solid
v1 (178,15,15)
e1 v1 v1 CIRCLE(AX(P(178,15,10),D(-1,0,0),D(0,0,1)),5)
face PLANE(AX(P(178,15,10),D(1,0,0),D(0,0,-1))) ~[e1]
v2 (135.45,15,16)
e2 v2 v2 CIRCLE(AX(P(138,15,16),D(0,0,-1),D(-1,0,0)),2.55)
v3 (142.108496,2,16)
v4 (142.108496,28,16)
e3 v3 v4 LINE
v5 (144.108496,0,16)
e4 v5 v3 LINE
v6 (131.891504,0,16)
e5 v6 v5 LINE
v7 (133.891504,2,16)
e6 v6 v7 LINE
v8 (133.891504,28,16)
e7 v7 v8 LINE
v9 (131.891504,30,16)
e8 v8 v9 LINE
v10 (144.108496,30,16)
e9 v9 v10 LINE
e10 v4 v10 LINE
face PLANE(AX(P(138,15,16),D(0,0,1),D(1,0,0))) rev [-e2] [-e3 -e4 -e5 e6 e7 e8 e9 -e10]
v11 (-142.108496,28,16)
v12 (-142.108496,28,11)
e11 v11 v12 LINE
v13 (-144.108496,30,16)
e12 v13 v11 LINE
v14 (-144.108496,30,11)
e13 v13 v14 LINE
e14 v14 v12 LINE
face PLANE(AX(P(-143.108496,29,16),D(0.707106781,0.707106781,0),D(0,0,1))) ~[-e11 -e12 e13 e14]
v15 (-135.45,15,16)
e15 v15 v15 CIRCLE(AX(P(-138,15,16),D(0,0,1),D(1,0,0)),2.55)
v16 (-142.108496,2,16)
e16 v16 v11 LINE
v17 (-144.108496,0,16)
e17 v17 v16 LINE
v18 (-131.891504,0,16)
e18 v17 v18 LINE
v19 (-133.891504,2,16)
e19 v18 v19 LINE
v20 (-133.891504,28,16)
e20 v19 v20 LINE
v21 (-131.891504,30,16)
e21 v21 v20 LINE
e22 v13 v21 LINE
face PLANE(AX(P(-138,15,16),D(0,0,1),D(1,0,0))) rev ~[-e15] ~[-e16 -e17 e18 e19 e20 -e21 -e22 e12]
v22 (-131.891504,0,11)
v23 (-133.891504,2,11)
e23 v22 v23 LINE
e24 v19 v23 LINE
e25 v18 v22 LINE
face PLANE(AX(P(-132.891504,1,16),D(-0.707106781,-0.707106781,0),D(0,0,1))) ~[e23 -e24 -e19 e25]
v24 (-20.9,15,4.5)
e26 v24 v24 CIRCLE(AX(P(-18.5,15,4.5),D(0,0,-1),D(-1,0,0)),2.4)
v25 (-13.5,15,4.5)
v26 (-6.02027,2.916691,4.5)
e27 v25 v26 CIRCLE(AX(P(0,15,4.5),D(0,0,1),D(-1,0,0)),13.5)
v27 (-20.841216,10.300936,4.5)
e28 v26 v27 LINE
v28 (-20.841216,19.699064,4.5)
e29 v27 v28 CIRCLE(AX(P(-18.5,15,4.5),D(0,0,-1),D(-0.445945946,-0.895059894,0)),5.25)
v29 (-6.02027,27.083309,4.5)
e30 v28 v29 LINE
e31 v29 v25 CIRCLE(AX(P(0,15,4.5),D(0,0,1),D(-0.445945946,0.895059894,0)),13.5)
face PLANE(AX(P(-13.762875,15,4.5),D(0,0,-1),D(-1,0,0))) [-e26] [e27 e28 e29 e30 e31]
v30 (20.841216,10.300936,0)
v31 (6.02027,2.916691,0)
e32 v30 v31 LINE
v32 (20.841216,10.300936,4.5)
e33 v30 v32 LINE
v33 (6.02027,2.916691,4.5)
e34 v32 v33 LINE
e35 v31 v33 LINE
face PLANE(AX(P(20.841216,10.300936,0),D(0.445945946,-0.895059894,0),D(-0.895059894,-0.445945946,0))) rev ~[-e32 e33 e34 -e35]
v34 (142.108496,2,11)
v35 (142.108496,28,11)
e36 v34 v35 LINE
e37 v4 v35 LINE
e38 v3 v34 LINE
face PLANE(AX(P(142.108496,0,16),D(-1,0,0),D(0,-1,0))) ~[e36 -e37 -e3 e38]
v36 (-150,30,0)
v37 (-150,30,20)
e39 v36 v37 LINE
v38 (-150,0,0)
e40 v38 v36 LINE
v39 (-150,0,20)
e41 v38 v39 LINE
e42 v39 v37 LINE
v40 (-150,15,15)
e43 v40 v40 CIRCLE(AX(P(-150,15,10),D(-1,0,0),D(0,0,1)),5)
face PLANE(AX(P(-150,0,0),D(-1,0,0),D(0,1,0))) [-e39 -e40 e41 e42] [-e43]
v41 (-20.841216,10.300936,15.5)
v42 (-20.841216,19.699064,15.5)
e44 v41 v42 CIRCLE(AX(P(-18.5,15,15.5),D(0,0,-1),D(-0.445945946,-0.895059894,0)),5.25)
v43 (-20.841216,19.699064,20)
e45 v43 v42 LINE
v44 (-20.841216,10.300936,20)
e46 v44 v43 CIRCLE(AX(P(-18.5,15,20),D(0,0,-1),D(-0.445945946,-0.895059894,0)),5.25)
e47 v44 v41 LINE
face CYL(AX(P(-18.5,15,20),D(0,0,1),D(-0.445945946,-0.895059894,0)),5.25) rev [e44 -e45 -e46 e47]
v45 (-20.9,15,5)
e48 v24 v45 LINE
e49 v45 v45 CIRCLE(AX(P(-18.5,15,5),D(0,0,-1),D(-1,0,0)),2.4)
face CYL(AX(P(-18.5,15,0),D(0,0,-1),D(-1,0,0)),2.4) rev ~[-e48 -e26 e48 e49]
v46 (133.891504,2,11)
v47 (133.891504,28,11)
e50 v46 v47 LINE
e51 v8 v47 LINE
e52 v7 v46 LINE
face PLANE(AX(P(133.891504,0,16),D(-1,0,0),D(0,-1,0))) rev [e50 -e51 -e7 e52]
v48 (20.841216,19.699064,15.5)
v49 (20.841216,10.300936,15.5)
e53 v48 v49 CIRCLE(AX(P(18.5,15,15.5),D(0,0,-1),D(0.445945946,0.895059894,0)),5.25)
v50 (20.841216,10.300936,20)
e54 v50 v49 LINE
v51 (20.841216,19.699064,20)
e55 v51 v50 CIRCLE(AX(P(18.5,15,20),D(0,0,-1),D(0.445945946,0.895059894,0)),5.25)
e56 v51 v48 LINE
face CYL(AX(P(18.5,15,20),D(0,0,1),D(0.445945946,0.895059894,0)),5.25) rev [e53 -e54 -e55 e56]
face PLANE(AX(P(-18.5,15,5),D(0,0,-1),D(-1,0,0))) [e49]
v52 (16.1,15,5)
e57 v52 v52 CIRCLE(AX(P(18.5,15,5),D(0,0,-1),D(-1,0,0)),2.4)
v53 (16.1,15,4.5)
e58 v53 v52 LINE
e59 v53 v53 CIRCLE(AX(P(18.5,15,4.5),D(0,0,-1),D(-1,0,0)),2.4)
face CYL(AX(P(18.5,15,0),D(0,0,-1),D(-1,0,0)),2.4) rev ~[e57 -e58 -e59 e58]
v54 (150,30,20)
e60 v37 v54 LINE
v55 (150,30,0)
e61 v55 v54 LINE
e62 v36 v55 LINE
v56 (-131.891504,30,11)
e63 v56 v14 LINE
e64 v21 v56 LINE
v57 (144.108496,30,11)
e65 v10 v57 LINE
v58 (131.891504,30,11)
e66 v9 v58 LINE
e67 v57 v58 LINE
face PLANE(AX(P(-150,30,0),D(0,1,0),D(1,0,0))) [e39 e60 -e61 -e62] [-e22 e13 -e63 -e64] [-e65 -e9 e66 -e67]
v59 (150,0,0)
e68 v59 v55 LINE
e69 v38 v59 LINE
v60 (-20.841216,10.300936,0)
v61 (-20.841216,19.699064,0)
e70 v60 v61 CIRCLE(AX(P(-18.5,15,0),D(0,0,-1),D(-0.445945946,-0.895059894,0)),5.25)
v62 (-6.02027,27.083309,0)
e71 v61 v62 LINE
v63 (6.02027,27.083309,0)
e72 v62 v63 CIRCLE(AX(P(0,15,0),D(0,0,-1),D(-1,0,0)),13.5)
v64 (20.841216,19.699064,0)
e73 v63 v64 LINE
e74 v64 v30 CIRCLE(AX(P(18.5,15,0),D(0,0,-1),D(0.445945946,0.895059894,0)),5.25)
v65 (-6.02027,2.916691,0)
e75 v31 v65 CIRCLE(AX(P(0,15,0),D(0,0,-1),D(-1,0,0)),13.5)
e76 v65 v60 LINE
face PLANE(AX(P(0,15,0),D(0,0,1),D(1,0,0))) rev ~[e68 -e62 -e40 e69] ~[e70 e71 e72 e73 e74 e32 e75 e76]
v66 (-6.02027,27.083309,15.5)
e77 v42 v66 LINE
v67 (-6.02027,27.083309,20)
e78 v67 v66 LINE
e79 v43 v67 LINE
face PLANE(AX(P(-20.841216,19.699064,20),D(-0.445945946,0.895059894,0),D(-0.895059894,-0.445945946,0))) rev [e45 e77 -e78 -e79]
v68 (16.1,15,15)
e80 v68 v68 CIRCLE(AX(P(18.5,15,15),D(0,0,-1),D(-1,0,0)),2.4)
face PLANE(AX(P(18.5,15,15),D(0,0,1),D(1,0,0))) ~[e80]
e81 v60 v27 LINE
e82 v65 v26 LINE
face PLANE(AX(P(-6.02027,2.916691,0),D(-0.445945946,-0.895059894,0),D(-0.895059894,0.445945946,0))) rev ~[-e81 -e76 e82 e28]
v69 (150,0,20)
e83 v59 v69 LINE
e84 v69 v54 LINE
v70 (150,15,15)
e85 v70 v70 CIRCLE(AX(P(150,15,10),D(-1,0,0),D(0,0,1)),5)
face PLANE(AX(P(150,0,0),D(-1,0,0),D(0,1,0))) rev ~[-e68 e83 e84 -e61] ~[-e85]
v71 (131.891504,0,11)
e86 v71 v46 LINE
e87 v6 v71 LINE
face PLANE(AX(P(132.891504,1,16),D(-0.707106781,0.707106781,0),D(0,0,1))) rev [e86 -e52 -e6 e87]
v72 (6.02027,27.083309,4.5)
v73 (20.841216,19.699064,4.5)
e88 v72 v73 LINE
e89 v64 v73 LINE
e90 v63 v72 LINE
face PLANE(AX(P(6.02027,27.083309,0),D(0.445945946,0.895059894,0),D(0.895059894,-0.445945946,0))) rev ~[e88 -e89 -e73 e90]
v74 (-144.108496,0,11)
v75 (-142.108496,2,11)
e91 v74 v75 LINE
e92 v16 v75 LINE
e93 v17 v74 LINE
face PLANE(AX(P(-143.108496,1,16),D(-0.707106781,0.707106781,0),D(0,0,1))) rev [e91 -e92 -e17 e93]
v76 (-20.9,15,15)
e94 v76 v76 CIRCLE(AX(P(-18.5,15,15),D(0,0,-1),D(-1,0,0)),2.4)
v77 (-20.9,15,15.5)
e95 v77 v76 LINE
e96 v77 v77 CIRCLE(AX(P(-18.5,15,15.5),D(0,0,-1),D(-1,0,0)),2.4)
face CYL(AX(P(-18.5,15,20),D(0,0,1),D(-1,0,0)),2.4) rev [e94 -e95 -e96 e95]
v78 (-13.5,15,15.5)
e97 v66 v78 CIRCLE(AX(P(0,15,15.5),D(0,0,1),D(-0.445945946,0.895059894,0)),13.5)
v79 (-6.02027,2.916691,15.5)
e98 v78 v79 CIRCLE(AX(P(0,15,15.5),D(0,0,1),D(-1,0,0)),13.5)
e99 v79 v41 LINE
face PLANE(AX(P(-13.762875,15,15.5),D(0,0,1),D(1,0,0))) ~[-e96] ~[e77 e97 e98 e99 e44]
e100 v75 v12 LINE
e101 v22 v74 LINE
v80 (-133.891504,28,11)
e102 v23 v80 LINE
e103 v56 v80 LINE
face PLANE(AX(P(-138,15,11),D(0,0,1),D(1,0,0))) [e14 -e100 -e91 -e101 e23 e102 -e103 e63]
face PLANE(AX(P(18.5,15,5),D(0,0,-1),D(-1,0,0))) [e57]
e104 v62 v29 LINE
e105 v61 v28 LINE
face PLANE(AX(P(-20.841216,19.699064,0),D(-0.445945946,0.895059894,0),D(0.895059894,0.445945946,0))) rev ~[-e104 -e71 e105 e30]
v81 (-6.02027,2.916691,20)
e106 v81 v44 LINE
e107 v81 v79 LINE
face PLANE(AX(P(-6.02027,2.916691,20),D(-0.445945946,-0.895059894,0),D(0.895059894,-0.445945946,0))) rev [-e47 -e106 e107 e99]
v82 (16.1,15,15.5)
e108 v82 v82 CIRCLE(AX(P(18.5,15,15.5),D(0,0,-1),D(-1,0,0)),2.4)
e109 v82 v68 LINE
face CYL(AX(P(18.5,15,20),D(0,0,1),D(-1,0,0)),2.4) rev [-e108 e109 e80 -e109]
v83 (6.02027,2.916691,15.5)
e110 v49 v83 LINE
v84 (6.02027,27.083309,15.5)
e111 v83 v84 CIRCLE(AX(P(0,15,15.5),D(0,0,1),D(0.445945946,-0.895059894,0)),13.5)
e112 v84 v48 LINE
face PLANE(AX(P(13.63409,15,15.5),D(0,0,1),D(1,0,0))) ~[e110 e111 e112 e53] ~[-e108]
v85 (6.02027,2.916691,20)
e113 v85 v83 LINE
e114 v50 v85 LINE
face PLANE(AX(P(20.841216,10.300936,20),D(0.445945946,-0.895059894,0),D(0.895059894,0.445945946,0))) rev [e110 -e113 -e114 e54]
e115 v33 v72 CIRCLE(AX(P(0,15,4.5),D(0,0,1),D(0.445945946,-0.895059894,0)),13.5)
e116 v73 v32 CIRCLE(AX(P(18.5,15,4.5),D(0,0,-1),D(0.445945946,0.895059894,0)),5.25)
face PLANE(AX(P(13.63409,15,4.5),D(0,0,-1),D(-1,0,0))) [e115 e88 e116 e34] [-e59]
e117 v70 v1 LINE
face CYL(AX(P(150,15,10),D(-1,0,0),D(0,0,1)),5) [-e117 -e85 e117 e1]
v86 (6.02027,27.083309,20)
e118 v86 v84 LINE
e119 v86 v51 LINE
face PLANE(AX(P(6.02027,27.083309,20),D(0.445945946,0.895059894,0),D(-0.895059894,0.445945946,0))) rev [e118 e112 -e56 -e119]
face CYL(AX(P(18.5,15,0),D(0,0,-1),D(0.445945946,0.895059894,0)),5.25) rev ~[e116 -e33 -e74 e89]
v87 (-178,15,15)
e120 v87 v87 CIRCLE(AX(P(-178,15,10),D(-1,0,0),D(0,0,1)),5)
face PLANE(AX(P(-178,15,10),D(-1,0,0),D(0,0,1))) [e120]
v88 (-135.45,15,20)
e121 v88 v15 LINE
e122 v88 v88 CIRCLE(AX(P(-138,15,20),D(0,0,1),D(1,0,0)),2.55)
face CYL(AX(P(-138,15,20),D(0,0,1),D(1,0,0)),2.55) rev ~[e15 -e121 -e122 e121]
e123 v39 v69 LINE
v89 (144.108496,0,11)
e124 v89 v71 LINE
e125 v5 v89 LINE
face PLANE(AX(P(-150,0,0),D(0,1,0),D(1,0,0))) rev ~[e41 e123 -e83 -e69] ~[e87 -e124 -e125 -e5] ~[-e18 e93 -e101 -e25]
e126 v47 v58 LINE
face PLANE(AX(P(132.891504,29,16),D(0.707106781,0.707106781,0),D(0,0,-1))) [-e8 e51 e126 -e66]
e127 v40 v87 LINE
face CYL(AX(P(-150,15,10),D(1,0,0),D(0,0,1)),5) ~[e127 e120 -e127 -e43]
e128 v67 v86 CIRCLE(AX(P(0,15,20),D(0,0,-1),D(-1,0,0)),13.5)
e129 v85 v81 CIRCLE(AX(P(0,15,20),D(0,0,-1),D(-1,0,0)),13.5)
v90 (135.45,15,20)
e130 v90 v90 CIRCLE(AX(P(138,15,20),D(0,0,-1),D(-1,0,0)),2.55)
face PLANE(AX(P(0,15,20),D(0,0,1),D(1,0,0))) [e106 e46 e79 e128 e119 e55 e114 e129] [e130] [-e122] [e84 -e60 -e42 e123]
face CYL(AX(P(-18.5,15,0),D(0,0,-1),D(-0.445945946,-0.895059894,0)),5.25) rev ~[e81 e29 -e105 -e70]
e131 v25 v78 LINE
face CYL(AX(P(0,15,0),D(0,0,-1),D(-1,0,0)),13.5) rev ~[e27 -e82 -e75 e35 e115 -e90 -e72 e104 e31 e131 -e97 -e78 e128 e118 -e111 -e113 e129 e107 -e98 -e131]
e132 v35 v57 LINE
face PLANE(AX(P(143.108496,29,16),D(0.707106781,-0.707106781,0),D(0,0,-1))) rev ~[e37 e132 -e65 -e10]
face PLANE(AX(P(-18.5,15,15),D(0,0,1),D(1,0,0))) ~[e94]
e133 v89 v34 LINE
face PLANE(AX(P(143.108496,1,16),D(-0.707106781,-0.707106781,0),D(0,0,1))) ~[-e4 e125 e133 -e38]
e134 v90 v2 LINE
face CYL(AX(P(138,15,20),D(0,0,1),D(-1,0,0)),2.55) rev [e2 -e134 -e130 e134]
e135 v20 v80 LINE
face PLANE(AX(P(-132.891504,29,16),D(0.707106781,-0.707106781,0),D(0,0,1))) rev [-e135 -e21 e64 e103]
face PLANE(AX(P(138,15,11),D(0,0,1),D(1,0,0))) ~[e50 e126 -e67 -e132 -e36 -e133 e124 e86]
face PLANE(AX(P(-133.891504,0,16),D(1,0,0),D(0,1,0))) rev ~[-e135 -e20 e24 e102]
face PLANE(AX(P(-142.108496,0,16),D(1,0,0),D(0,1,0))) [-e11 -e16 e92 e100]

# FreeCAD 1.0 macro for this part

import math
import FreeCAD as App
import Part
import Sketcher
from FreeCAD import Vector
Q = App.Units.Quantity


def edges_at(feature, points):
    """Names of the edges that pass closest to the given points."""
    edges = feature.Shape.Edges
    near = lambda p: min(range(len(edges)), key=lambda i: edges[i].distToShape(Part.Vertex(*p))[0])
    return sorted({f"Edge{near(p) + 1}" for p in points})


def add_polygon(sketch, points):
    """Adds a closed chain of lines whose ends are joined by coincident constraints."""
    first, n = sketch.GeometryCount, len(points)
    for a, b in zip(points, points[1:] + points[:1]):
        sketch.addGeometry(Part.LineSegment(App.Vector(*a, 0), App.Vector(*b, 0)), False)
    for i in range(n):
        sketch.addConstraint(Sketcher.Constraint("Coincident", first + i, 2, first + (i + 1) % n, 1))

doc = App.newDocument("Part")
body = doc.addObject("PartDesign::Body", "Body")

# Sketch on XY plane
sketch1 = body.newObject("Sketcher::SketchObject", "Sketch")
sketch1.AttachmentSupport = (doc.getObject("XY_Plane"), [""])
sketch1.MapMode = "FlatFace"
add_polygon(sketch1, [(-150, 30), (-150, 0), (150, 0), (150, 30)])  # lines 0-3
sketch1.addConstraint([
    Sketcher.Constraint("Vertical", 0),
    Sketcher.Constraint("Horizontal", 1),
    Sketcher.Constraint("Vertical", 2),
    Sketcher.Constraint("Horizontal", 3),
    Sketcher.Constraint("Symmetric", 0, 2, 1, 2, -1, 1),
    Sketcher.Constraint("DistanceX", 1, 1, 1, 2, Q("300 mm")),
    Sketcher.Constraint("DistanceY", 0, 2, 0, 1, Q("30 mm")),
])
pad1 = body.newObject("PartDesign::Pad", "Pad")
pad1.Profile = sketch1
pad1.Length = 20

# Sketch on XY plane
sketch2 = body.newObject("Sketcher::SketchObject", "Sketch001")
sketch2.AttachmentSupport = (doc.getObject("XY_Plane"), [""])
sketch2.MapMode = "FlatFace"
sketch2.addGeometry(Part.Circle(Vector(0, 15, 0), Vector(0, 0, 1), 4), False)
sketch2.addConstraint([
    Sketcher.Constraint("PointOnObject", 0, 3, -2),
    Sketcher.Constraint("Diameter", 0, Q("8 mm")),
    Sketcher.Constraint("DistanceY", -1, 1, 0, 3, Q("15 mm")),
])
pocket1 = body.newObject("PartDesign::Pocket", "Pocket")
pocket1.Profile = sketch2
pocket1.Type = "ThroughAll"
pocket1.Reversed = True

# Sketch on XY plane
sketch3 = body.newObject("Sketcher::SketchObject", "Sketch002")
sketch3.AttachmentSupport = (doc.getObject("XY_Plane"), [""])
sketch3.MapMode = "FlatFace"
sketch3.addGeometry([
    Part.Circle(Vector(0, 15, 0), Vector(0, 0, 1), 6),
    Part.Circle(Vector(0, 15, 0), Vector(0, 0, 1), 4),
], False)
sketch3.addConstraint([
    Sketcher.Constraint("Coincident", 1, 3, 0, 3),
    Sketcher.Constraint("PointOnObject", 0, 3, -2),
    Sketcher.Constraint("Diameter", 0, Q("12 mm")),
    Sketcher.Constraint("Diameter", 1, Q("8 mm")),
    Sketcher.Constraint("DistanceY", -1, 1, 0, 3, Q("15 mm")),
])
pocket2 = body.newObject("PartDesign::Pocket", "Pocket001")
pocket2.Profile = sketch3
pocket2.Type = "ThroughAll"
pocket2.Reversed = True

# Sketch on XY plane
sketch4 = body.newObject("Sketcher::SketchObject", "Sketch003")
sketch4.AttachmentSupport = (doc.getObject("XY_Plane"), [""])
sketch4.MapMode = "FlatFace"
sketch4.addGeometry([
    Part.Circle(Vector(0, 15, 0), Vector(0, 0, 1), 13.5),
    Part.Circle(Vector(0, 15, 0), Vector(0, 0, 1), 6),
], False)
sketch4.addConstraint([
    Sketcher.Constraint("Coincident", 1, 3, 0, 3),
    Sketcher.Constraint("PointOnObject", 0, 3, -2),
    Sketcher.Constraint("Diameter", 0, Q("27 mm")),
    Sketcher.Constraint("Diameter", 1, Q("12 mm")),
    Sketcher.Constraint("DistanceY", -1, 1, 0, 3, Q("15 mm")),
])
pocket3 = body.newObject("PartDesign::Pocket", "Pocket002")
pocket3.Profile = sketch4
pocket3.Length = 155.272486
pocket3.Reversed = True

# Sketch on XY plane
sketch5 = body.newObject("Sketcher::SketchObject", "Sketch004")
sketch5.AttachmentSupport = (doc.getObject("XY_Plane"), [""])
sketch5.MapMode = "FlatFace"
sketch5.addGeometry([
    Part.ArcOfCircle(Part.Circle(Vector(0, 15, 0), Vector(0, 0, 1), 13.5), math.radians(-63.516124), math.radians(63.516124)),  # 0
    Part.LineSegment(Vector(6.02027, 27.083309, 0), Vector(20.841216, 19.699064, 0)),  # 1
    Part.ArcOfCircle(Part.Circle(Vector(18.5, 15, 0), Vector(0, 0, 1), 5.25), math.radians(-63.516124), math.radians(63.516124)),  # 2
    Part.LineSegment(Vector(20.841216, 10.300936, 0), Vector(6.02027, 2.916691, 0)),  # 3
    Part.Circle(Vector(18.5, 15, 0), Vector(0, 0, 1), 2.4),  # 4
    Part.LineSegment(Vector(-20.841216, 19.699064, 0), Vector(-6.02027, 27.083309, 0)),  # 5
    Part.ArcOfCircle(Part.Circle(Vector(0, 15, 0), Vector(0, 0, 1), 13.5), math.radians(116.483876), math.radians(180)),  # 6
    Part.ArcOfCircle(Part.Circle(Vector(0, 15, 0), Vector(0, 0, 1), 13.5), math.radians(180), math.radians(243.516124)),  # 7
    Part.LineSegment(Vector(-6.02027, 2.916691, 0), Vector(-20.841216, 10.300936, 0)),  # 8
    Part.ArcOfCircle(Part.Circle(Vector(-18.5, 15, 0), Vector(0, 0, 1), 5.25), math.radians(116.483876), math.radians(243.516124)),  # 9
    Part.Circle(Vector(-18.5, 15, 0), Vector(0, 0, 1), 2.4),  # 10
], False)
sketch5.addConstraint([
    Sketcher.Constraint("Tangent", 0, 2, 1, 1),
    Sketcher.Constraint("Tangent", 1, 2, 2, 2),
    Sketcher.Constraint("Tangent", 2, 1, 3, 1),
    Sketcher.Constraint("Tangent", 3, 2, 0, 1),
    Sketcher.Constraint("Tangent", 5, 2, 6, 1),
    Sketcher.Constraint("Tangent", 6, 2, 7, 1),
    Sketcher.Constraint("Tangent", 7, 2, 8, 1),
    Sketcher.Constraint("Tangent", 8, 2, 9, 2),
    Sketcher.Constraint("Tangent", 9, 1, 5, 1),
    Sketcher.Constraint("Coincident", 4, 3, 2, 3),
    Sketcher.Constraint("Coincident", 6, 3, 0, 3),
    Sketcher.Constraint("Coincident", 10, 3, 9, 3),
    Sketcher.Constraint("Equal", 0, 6),
    Sketcher.Constraint("Equal", 6, 7),
    Sketcher.Constraint("Equal", 2, 9),
    Sketcher.Constraint("Equal", 4, 10),
    Sketcher.Constraint("Symmetric", 2, 3, 9, 3, -2),
    Sketcher.Constraint("PointOnObject", 0, 3, -2),
    Sketcher.Constraint("Parallel", 3, 5),
    Sketcher.Constraint("Horizontal", 10, 3, 6, 2),
    Sketcher.Constraint("Diameter", 4, Q("4.8 mm")),
    Sketcher.Constraint("Radius", 0, Q("13.5 mm")),
    Sketcher.Constraint("Radius", 2, Q("5.25 mm")),
    Sketcher.Constraint("DistanceY", -1, 1, 0, 3, Q("15 mm")),
    Sketcher.Constraint("DistanceX", 9, 3, 2, 3, Q("37 mm")),
])
pocket4 = body.newObject("PartDesign::Pocket", "Pocket003")
pocket4.Profile = sketch5
pocket4.Length = 4.5
pocket4.Reversed = True

# Sketch on XY plane
sketch6 = body.newObject("Sketcher::SketchObject", "Sketch005")
sketch6.AttachmentSupport = (doc.getObject("XY_Plane"), [""])
sketch6.MapMode = "FlatFace"
sketch6.addGeometry([
    Part.Circle(Vector(18.5, 15, 0), Vector(0, 0, 1), 2.4),
    Part.Circle(Vector(-18.5, 15, 0), Vector(0, 0, 1), 2.4),
], False)
sketch6.addConstraint([
    Sketcher.Constraint("Equal", 0, 1),
    Sketcher.Constraint("Symmetric", 0, 3, 1, 3, -2),
    Sketcher.Constraint("Diameter", 0, Q("4.8 mm")),
    Sketcher.Constraint("DistanceY", -1, 1, 0, 3, Q("15 mm")),
    Sketcher.Constraint("DistanceX", 1, 3, 0, 3, Q("37 mm")),
])
pocket5 = body.newObject("PartDesign::Pocket", "Pocket004")
pocket5.Profile = sketch6
pocket5.Length = 5
pocket5.Reversed = True

# Sketch on YZ plane
sketch7 = body.newObject("Sketcher::SketchObject", "Sketch006")
sketch7.AttachmentSupport = (doc.getObject("YZ_Plane"), [""])
sketch7.MapMode = "FlatFace"
sketch7.AttachmentOffset = App.Placement(Vector(0, 0, -150), App.Rotation())
sketch7.addGeometry(Part.Circle(Vector(15, 10, 0), Vector(0, 0, 1), 5), False)
sketch7.addConstraint([
    Sketcher.Constraint("Diameter", 0, Q("10 mm")),
    Sketcher.Constraint("DistanceX", -1, 1, 0, 3, Q("15 mm")),
    Sketcher.Constraint("DistanceY", -1, 1, 0, 3, Q("10 mm")),
])
pad2 = body.newObject("PartDesign::Pad", "Pad001")
pad2.Profile = sketch7
pad2.Length = 28
pad2.Reversed = True
doc.recompute()

mirrored = body.newObject("PartDesign::Mirrored", "Mirrored")
mirrored.Originals = [pad2]
mirrored.MirrorPlane = (doc.getObject("YZ_Plane"), [""])
body.Tip = mirrored

# Sketch on XY plane
sketch8 = body.newObject("Sketcher::SketchObject", "Sketch007")
sketch8.AttachmentSupport = (doc.getObject("XY_Plane"), [""])
sketch8.MapMode = "FlatFace"
sketch8.AttachmentOffset = App.Placement(Vector(0, 0, 20), App.Rotation())
sketch8.addGeometry(Part.Circle(Vector(-138, 15, 0), Vector(0, 0, 1), 2.55), False)
sketch8.addConstraint([
    Sketcher.Constraint("Diameter", 0, Q("5.1 mm")),
    Sketcher.Constraint("DistanceX", 0, 3, -1, 1, Q("138 mm")),
    Sketcher.Constraint("DistanceY", -1, 1, 0, 3, Q("15 mm")),
])
pocket6 = body.newObject("PartDesign::Pocket", "Pocket005")
pocket6.Profile = sketch8
pocket6.Length = 4

# Sketch on XY plane
sketch9 = body.newObject("Sketcher::SketchObject", "Sketch008")
sketch9.AttachmentSupport = (doc.getObject("XY_Plane"), [""])
sketch9.MapMode = "FlatFace"
sketch9.AttachmentOffset = App.Placement(Vector(0, 0, 16), App.Rotation())
add_polygon(sketch9, [(-142.108496, 30), (-142.108496, 0), (-133.891504, 0), (-133.891504, 30)])  # lines 0-3
sketch9.addConstraint([
    Sketcher.Constraint("Vertical", 0),
    Sketcher.Constraint("Horizontal", 1),
    Sketcher.Constraint("Vertical", 2),
    Sketcher.Constraint("Horizontal", 3),
    Sketcher.Constraint("PointOnObject", 0, 2, -1),
    Sketcher.Constraint("DistanceY", 0, 2, 0, 1, Q("30 mm")),
    Sketcher.Constraint("DistanceX", 1, 1, 1, 2, Q("8.216991 mm")),
    Sketcher.Constraint("DistanceX", 0, 2, -1, 1, Q("142.108496 mm")),
])
pocket7 = body.newObject("PartDesign::Pocket", "Pocket006")
pocket7.Profile = sketch9
pocket7.Length = 5
doc.recompute()

chamfer = body.newObject("PartDesign::Chamfer", "Chamfer")
chamfer.Base = (pocket7, edges_at(pocket7, [
    (-142.108, 30, 13.5),
    (-133.892, 30, 13.5),
    (-133.892, 0, 13.5),
    (-142.108, 0, 13.5),
]))
chamfer.Size = 2
doc.recompute()

mirrored2 = body.newObject("PartDesign::Mirrored", "Mirrored001")
mirrored2.Originals = [pocket6, pocket7]
mirrored2.MirrorPlane = (doc.getObject("YZ_Plane"), [""])
body.Tip = mirrored2
doc.recompute()

chamfer2 = body.newObject("PartDesign::Chamfer", "Chamfer001")
chamfer2.Base = (mirrored2, edges_at(mirrored2, [
    (142.108, 30, 13.5),
    (133.892, 30, 13.5),
    (133.892, 0, 13.5),
    (142.108, 0, 13.5),
]))
chamfer2.Size = 2
doc.recompute()

datumplane = body.newObject("PartDesign::Plane", "DatumPlane")
datumplane.AttachmentSupport = (doc.getObject("XY_Plane"), [""])
datumplane.MapMode = "FlatFace"
datumplane.AttachmentOffset = App.Placement(Vector(0, 0, 10), App.Rotation())
mirrored3 = body.newObject("PartDesign::Mirrored", "Mirrored002")
mirrored3.Originals = [pocket4, pocket5]
mirrored3.MirrorPlane = (datumplane, [""])
body.Tip = mirrored3

doc.recompute()
